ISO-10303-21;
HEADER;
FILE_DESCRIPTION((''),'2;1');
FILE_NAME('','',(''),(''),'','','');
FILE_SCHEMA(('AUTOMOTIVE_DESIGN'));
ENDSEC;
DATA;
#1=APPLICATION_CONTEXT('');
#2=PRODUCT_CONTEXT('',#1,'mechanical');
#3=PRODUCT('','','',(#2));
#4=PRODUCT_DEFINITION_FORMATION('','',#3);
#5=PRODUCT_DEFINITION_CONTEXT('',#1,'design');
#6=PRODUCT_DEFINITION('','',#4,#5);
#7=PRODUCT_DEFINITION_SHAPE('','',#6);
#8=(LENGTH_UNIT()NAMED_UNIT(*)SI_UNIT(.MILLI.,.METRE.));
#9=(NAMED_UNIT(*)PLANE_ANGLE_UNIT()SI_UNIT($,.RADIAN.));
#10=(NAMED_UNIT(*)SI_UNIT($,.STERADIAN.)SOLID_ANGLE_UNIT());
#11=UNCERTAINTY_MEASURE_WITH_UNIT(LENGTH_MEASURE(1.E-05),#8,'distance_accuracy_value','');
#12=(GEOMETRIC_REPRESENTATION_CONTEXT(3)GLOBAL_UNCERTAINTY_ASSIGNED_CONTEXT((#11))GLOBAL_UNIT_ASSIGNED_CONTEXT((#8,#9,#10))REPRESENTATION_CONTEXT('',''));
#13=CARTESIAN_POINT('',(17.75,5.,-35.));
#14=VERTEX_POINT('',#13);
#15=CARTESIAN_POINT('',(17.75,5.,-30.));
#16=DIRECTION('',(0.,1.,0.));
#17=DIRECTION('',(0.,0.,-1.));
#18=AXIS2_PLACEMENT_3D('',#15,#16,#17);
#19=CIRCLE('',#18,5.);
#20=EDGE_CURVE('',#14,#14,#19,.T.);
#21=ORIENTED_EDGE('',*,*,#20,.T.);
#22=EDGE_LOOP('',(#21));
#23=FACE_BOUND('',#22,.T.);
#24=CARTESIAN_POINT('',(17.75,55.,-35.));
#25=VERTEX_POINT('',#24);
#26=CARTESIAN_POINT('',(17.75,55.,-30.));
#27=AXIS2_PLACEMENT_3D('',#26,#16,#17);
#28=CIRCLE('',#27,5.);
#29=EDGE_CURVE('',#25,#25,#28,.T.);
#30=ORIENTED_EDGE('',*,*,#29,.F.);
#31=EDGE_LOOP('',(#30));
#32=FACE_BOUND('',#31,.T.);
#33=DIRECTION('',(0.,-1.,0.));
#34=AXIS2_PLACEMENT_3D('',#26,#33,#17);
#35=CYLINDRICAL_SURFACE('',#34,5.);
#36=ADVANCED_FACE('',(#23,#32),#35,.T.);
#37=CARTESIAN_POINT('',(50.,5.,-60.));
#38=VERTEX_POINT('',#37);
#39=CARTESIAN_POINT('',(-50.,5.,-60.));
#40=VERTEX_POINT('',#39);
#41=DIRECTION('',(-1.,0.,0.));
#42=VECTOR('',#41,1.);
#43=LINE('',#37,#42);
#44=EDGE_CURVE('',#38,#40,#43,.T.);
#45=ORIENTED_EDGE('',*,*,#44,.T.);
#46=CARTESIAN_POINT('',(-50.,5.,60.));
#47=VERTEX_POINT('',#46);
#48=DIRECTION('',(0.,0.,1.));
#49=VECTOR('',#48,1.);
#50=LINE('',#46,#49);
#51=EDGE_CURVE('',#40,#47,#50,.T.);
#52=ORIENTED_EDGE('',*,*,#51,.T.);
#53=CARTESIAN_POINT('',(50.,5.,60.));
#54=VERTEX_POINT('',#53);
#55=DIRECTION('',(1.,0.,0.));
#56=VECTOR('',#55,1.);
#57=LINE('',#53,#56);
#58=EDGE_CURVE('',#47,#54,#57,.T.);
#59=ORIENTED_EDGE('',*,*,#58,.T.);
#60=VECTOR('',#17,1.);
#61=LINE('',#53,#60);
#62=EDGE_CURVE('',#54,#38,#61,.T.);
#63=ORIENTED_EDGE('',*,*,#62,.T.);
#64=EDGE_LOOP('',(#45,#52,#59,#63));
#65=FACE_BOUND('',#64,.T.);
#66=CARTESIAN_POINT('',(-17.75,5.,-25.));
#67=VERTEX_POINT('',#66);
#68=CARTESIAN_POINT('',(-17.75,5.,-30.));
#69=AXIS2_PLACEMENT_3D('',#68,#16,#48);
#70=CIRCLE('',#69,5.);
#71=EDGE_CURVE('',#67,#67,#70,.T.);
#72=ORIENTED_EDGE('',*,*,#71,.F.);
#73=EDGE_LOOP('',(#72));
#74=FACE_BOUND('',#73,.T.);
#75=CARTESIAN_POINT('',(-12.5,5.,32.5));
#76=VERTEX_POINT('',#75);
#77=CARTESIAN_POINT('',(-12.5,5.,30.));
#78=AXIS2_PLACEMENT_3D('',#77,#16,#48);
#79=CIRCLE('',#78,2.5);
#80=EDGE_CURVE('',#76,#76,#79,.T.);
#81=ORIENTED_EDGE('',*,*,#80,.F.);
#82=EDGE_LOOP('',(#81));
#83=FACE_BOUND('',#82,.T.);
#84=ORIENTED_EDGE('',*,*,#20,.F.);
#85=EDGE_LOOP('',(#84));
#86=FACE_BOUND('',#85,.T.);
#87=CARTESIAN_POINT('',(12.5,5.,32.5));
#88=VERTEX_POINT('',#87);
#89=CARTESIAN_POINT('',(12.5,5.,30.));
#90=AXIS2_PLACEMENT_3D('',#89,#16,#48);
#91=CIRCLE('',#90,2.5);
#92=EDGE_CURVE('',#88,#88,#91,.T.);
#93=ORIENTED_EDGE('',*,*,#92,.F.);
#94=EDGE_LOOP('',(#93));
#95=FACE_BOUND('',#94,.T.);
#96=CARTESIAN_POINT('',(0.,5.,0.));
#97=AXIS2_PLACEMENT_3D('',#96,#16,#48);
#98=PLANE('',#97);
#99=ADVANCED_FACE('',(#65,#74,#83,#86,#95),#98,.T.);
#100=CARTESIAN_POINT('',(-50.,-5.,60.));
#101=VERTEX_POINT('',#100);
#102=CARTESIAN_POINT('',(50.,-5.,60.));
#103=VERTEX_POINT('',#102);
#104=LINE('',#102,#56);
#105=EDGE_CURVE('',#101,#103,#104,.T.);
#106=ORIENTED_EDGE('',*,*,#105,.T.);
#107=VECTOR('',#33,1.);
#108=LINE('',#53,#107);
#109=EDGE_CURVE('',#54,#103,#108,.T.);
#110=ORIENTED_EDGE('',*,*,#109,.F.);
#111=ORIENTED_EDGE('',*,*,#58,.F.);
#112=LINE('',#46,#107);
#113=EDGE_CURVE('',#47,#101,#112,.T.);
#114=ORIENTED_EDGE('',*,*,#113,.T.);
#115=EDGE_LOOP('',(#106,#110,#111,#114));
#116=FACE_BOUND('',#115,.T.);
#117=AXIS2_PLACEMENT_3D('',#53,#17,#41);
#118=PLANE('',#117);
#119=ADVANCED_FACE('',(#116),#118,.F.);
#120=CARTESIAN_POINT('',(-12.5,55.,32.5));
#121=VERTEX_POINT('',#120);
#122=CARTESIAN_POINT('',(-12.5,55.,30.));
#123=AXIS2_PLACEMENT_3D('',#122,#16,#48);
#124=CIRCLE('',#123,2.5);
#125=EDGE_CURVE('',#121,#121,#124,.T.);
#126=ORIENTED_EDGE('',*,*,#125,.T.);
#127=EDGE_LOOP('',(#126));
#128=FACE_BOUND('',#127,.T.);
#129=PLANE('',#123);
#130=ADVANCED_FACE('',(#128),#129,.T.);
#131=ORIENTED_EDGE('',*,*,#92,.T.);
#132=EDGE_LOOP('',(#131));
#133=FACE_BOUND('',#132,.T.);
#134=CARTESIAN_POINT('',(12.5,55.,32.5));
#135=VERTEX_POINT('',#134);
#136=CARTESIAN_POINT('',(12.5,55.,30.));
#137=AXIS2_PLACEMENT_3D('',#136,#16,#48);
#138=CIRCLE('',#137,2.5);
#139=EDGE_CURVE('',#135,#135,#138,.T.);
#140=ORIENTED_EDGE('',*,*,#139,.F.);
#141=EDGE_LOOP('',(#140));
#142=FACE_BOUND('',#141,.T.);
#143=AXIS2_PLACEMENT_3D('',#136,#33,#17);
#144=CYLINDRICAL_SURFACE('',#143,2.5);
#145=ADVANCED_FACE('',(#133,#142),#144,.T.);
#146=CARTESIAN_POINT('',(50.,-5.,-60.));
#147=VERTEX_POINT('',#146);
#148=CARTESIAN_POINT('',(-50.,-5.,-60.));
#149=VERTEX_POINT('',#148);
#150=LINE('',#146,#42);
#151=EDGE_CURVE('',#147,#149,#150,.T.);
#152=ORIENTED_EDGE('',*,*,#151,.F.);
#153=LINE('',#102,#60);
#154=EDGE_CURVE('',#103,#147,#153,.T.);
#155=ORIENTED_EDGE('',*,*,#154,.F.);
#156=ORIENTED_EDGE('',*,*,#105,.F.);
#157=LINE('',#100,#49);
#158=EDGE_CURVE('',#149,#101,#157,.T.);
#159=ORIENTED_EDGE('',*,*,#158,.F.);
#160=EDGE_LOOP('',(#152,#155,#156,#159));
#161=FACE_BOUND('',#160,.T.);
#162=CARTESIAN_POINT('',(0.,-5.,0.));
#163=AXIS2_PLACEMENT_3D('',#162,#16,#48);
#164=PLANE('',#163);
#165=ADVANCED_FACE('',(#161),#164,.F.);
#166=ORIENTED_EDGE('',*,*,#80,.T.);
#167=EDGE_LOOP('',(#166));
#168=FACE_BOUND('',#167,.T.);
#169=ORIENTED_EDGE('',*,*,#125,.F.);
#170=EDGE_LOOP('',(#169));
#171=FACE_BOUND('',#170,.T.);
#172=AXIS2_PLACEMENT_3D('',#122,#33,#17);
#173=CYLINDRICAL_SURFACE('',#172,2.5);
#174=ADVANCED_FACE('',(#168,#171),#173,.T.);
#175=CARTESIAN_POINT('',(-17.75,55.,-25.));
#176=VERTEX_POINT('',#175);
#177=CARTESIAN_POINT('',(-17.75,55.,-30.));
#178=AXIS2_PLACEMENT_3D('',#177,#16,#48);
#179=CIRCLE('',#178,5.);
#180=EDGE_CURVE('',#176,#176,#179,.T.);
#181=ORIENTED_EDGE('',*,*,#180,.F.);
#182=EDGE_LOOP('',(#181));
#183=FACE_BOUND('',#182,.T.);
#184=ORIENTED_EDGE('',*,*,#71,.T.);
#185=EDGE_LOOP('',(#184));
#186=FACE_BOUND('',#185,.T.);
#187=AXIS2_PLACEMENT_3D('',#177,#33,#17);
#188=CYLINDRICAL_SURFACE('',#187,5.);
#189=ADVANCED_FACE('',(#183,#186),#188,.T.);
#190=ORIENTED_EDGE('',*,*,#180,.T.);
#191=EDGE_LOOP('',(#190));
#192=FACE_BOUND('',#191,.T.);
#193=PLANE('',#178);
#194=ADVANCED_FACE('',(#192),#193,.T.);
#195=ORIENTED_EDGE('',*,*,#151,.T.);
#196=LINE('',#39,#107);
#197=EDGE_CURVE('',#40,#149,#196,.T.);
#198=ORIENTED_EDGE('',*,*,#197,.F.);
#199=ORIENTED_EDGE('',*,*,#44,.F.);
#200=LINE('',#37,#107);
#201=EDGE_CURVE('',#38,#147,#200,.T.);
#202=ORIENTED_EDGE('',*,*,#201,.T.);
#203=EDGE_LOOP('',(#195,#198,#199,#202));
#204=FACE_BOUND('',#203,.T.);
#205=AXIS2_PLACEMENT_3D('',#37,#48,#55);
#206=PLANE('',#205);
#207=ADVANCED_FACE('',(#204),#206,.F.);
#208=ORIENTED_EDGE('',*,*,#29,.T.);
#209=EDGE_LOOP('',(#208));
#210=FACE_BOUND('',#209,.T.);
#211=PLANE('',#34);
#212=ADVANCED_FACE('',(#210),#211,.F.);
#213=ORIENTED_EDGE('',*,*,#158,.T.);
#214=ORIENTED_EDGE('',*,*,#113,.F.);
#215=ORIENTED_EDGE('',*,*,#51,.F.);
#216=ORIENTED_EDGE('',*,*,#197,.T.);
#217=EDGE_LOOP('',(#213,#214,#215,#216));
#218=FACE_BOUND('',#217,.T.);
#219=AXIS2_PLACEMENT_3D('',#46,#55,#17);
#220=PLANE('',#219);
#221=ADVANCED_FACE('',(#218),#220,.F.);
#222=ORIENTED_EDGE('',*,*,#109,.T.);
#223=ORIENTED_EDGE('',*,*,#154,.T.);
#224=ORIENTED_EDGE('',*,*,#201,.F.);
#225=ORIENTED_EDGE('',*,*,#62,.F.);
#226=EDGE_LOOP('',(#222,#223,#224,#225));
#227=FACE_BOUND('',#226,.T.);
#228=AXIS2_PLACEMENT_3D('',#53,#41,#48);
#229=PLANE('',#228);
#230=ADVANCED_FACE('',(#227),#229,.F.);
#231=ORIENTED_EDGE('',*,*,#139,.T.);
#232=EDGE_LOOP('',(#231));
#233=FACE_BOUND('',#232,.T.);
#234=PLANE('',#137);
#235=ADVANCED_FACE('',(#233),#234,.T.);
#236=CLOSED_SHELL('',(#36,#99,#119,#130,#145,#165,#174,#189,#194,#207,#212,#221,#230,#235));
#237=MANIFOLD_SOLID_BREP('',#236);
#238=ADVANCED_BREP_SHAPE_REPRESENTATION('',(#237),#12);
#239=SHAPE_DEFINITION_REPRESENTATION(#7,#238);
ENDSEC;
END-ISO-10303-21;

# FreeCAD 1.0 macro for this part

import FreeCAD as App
import Part
import Sketcher
Q = App.Units.Quantity


def add_polygon(sketch, points):
    """Adds a closed chain of lines whose ends are joined by coincident constraints."""
    first, n = sketch.GeometryCount, len(points)
    for a, b in zip(points, points[1:] + points[:1]):
        sketch.addGeometry(Part.LineSegment(App.Vector(*a, 0), App.Vector(*b, 0)), False)
    for i in range(n):
        sketch.addConstraint(Sketcher.Constraint("Coincident", first + i, 2, first + (i + 1) % n, 1))

doc = App.newDocument("Part")
params = doc.addObject("Spreadsheet::Sheet", "Params")
for row, (alias, value) in enumerate([
    ("sketch1_width", "100 mm"),
    ("sketch1_height", "120 mm"),
    ("pad1_length", "10 mm"),
    ("sketch2_diameter", "10 mm"),
    ("sketch2_diameter2", "5 mm"),
    ("pad2_length", "50 mm"),
], start=1):
    params.set(f"A{row}", alias)
    params.set(f"B{row}", "=" + value)
    params.setAlias(f"B{row}", alias)

body = doc.addObject("PartDesign::Body", "Body")

sketch1 = body.newObject("Sketcher::SketchObject", "Sketch")
sketch1.AttachmentSupport = (doc.getObject("XZ_Plane"), [""])
sketch1.MapMode = "FlatFace"
add_polygon(sketch1, [(-50, -60), (-50, 60), (50, 60), (50, -60)])
sketch1.addConstraint(Sketcher.Constraint("Vertical", 0))
sketch1.addConstraint(Sketcher.Constraint("Horizontal", 1))
sketch1.addConstraint(Sketcher.Constraint("Vertical", 2))
sketch1.addConstraint(Sketcher.Constraint("Horizontal", 3))
sketch1.addConstraint(Sketcher.Constraint("Symmetric", 0, 2, 2, 2, -1, 1))
sketch1.addConstraint(Sketcher.Constraint("DistanceX", 1, 1, 1, 2, Q("100 mm")))
sketch1.addConstraint(Sketcher.Constraint("DistanceY", 0, 1, 0, 2, Q("120 mm")))
sketch1.setExpression("Constraints[9]", "Params.sketch1_width")
sketch1.setExpression("Constraints[10]", "Params.sketch1_height")
pad1 = body.newObject("PartDesign::Pad", "Pad")
pad1.Profile = sketch1
pad1.setExpression("Length", "Params.pad1_length")
pad1.Midplane = True

sketch2 = body.newObject("Sketcher::SketchObject", "Sketch001")
sketch2.AttachmentSupport = (doc.getObject("XZ_Plane"), [""])
sketch2.MapMode = "FlatFace"
sketch2.AttachmentOffset = App.Placement(App.Vector(0, 0, -5), App.Rotation())
sketch2.addGeometry(Part.Circle(App.Vector(-17.8, -30, 0), App.Vector(0, 0, 1), 5), False)
sketch2.addGeometry(Part.Circle(App.Vector(17.8, -30, 0), App.Vector(0, 0, 1), 5), False)
sketch2.addGeometry(Part.Circle(App.Vector(-12.5, 30, 0), App.Vector(0, 0, 1), 2.5), False)
sketch2.addGeometry(Part.Circle(App.Vector(12.5, 30, 0), App.Vector(0, 0, 1), 2.5), False)
sketch2.addConstraint(Sketcher.Constraint("Equal", 0, 1))
sketch2.addConstraint(Sketcher.Constraint("Equal", 2, 3))
sketch2.addConstraint(Sketcher.Constraint("Symmetric", 0, 3, 1, 3, -2))
sketch2.addConstraint(Sketcher.Constraint("Symmetric", 2, 3, 3, 3, -2))
sketch2.addConstraint(Sketcher.Constraint("Diameter", 0, Q("10 mm")))
sketch2.addConstraint(Sketcher.Constraint("Diameter", 2, Q("5 mm")))
sketch2.addConstraint(Sketcher.Constraint("DistanceY", 0, 3, -1, 1, Q("30 mm")))
sketch2.addConstraint(Sketcher.Constraint("DistanceY", -1, 1, 2, 3, Q("30 mm")))
sketch2.addConstraint(Sketcher.Constraint("DistanceX", 2, 3, 3, 3, Q("25 mm")))
sketch2.addConstraint(Sketcher.Constraint("DistanceX", 0, 3, 1, 3, Q("35.5 mm")))
sketch2.setExpression("Constraints[4]", "Params.sketch2_diameter")
sketch2.setExpression("Constraints[5]", "Params.sketch2_diameter2")
pad2 = body.newObject("PartDesign::Pad", "Pad001")
pad2.Profile = sketch2
pad2.setExpression("Length", "Params.pad2_length")
pad2.Reversed = True

doc.recompute()
